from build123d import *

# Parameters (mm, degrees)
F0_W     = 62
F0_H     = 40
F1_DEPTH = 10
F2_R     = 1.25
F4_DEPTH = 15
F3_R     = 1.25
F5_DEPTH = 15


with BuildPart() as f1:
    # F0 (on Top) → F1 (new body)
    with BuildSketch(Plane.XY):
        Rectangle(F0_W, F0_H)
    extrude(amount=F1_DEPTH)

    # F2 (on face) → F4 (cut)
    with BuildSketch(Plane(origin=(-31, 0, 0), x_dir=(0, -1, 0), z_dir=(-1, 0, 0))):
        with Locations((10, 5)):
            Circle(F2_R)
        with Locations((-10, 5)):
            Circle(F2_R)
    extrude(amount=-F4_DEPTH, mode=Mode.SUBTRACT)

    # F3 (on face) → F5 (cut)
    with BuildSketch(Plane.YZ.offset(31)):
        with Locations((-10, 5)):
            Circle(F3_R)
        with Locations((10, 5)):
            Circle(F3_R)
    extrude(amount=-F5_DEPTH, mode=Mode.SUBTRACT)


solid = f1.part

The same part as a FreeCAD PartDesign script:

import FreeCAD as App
import Part
import Sketcher
Q = App.Units.Quantity


def add_polygon(sketch, points):
    """Adds a closed chain of lines whose ends are joined by coincident constraints."""
    first, n = sketch.GeometryCount, len(points)
    for a, b in zip(points, points[1:] + points[:1]):
        sketch.addGeometry(Part.LineSegment(App.Vector(*a, 0), App.Vector(*b, 0)), False)
    for i in range(n):
        sketch.addConstraint(Sketcher.Constraint("Coincident", first + i, 2, first + (i + 1) % n, 1))

doc = App.newDocument("Part")
body = doc.addObject("PartDesign::Body", "Body")

sketch1 = body.newObject("Sketcher::SketchObject", "Sketch")
sketch1.AttachmentSupport = (doc.getObject("XY_Plane"), [""])
sketch1.MapMode = "FlatFace"
add_polygon(sketch1, [(-31, 20), (-31, -20), (31, -20), (31, 20)])
sketch1.addConstraint([
    Sketcher.Constraint("Vertical", 0),
    Sketcher.Constraint("Horizontal", 1),
    Sketcher.Constraint("Vertical", 2),
    Sketcher.Constraint("Horizontal", 3),
    Sketcher.Constraint("Symmetric", 0, 2, 2, 2, -1, 1),
    Sketcher.Constraint("DistanceX", 1, 1, 1, 2, Q("62 mm")),
    Sketcher.Constraint("DistanceY", 0, 2, 0, 1, Q("40 mm")),
])
pad1 = body.newObject("PartDesign::Pad", "Pad")
pad1.Profile = sketch1
pad1.Length = 10

sketch2 = body.newObject("Sketcher::SketchObject", "Sketch001")
sketch2.AttachmentSupport = (doc.getObject("YZ_Plane"), [""])
sketch2.MapMode = "FlatFace"
sketch2.AttachmentOffset = App.Placement(App.Vector(0, 0, -31), App.Rotation())
sketch2.addGeometry([
    Part.Circle(App.Vector(-10, 5, 0), App.Vector(0, 0, 1), 1.25),
    Part.Circle(App.Vector(10, 5, 0), App.Vector(0, 0, 1), 1.25),
], False)
sketch2.addConstraint([
    Sketcher.Constraint("Equal", 0, 1),
    Sketcher.Constraint("Symmetric", 0, 3, 1, 3, -2),
    Sketcher.Constraint("Diameter", 0, Q("2.5 mm")),
    Sketcher.Constraint("DistanceX", 0, 3, -1, 1, Q("10 mm")),
    Sketcher.Constraint("DistanceY", -1, 1, 0, 3, Q("5 mm")),
])
pocket1 = body.newObject("PartDesign::Pocket", "Pocket")
pocket1.Profile = sketch2
pocket1.Length = 15
pocket1.Reversed = True

sketch3 = body.newObject("Sketcher::SketchObject", "Sketch002")
sketch3.AttachmentSupport = (doc.getObject("YZ_Plane"), [""])
sketch3.MapMode = "FlatFace"
sketch3.AttachmentOffset = App.Placement(App.Vector(0, 0, 31), App.Rotation())
sketch3.addGeometry([
    Part.Circle(App.Vector(-10, 5, 0), App.Vector(0, 0, 1), 1.25),
    Part.Circle(App.Vector(10, 5, 0), App.Vector(0, 0, 1), 1.25),
], False)
sketch3.addConstraint([
    Sketcher.Constraint("Equal", 0, 1),
    Sketcher.Constraint("Symmetric", 0, 3, 1, 3, -2),
    Sketcher.Constraint("Diameter", 0, Q("2.5 mm")),
    Sketcher.Constraint("DistanceX", 0, 3, -1, 1, Q("10 mm")),
    Sketcher.Constraint("DistanceY", -1, 1, 0, 3, Q("5 mm")),
])
pocket2 = body.newObject("PartDesign::Pocket", "Pocket001")
pocket2.Profile = sketch3
pocket2.Length = 15

doc.recompute()
